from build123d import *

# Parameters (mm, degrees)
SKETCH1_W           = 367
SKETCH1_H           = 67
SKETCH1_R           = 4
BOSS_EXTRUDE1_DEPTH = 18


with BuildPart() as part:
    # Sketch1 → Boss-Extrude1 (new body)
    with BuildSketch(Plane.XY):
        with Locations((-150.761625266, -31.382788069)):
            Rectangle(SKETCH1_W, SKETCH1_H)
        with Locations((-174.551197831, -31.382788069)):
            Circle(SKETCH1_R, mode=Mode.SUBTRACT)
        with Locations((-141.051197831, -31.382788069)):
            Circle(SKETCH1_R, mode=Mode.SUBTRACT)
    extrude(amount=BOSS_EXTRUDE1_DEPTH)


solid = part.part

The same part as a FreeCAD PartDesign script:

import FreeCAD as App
import Part
import Sketcher

V = App.Vector


def add_polygon(sketch, points):
    """Adds a closed chain of lines whose ends are joined by coincident constraints."""
    first, n = sketch.GeometryCount, len(points)
    for a, b in zip(points, points[1:] + points[:1]):
        sketch.addGeometry(Part.LineSegment(App.Vector(*a, 0), App.Vector(*b, 0)), False)
    for i in range(n):
        sketch.addConstraint(Sketcher.Constraint("Coincident", first + i, 2, first + (i + 1) % n, 1))

doc = App.newDocument("Part")
body = doc.addObject("PartDesign::Body", "Body")

# Sketch on XY plane
sketch1 = body.newObject("Sketcher::SketchObject", "Sketch")
sketch1.AttachmentSupport = (doc.getObject("XY_Plane"), [""])
sketch1.MapMode = "FlatFace"
add_polygon(sketch1, [(-334.3, 2.1), (-334.3, -64.9), (32.7, -64.9), (32.7, 2.1)])  # lines 0-3
sketch1.addGeometry(Part.Circle(V(-174.6, -31.4, 0), V(0, 0, 1), 4), False)  # 4
sketch1.addGeometry(Part.Circle(V(-141.1, -31.4, 0), V(0, 0, 1), 4), False)  # 5
sketch1.addConstraint([
    Sketcher.Constraint("Vertical", 0),
    Sketcher.Constraint("Horizontal", 1),
    Sketcher.Constraint("Vertical", 2),
    Sketcher.Constraint("Horizontal", 3),
    Sketcher.Constraint("Equal", 4, 5),
    Sketcher.Constraint("Horizontal", 4, 3, 5, 3),
    Sketcher.Constraint("Diameter", 4, 8.0),
    Sketcher.Constraint("DistanceX", 1, 1, 1, 2, 367.0),
    Sketcher.Constraint("DistanceY", 0, 2, 0, 1, 67.0),
    Sketcher.Constraint("DistanceX", 4, 3, 5, 3, 33.5),
    Sketcher.Constraint("DistanceY", 0, 2, 4, 3, 33.5),
    Sketcher.Constraint("DistanceY", 4, 3, -1, 1, 31.382788),
    Sketcher.Constraint("DistanceX", 4, 3, -1, 1, 174.551198),
    Sketcher.Constraint("DistanceX", 0, 2, -1, 1, 334.261625),
])
pad1 = body.newObject("PartDesign::Pad", "Pad")
pad1.Profile = sketch1
pad1.Length = 18

doc.recompute()
